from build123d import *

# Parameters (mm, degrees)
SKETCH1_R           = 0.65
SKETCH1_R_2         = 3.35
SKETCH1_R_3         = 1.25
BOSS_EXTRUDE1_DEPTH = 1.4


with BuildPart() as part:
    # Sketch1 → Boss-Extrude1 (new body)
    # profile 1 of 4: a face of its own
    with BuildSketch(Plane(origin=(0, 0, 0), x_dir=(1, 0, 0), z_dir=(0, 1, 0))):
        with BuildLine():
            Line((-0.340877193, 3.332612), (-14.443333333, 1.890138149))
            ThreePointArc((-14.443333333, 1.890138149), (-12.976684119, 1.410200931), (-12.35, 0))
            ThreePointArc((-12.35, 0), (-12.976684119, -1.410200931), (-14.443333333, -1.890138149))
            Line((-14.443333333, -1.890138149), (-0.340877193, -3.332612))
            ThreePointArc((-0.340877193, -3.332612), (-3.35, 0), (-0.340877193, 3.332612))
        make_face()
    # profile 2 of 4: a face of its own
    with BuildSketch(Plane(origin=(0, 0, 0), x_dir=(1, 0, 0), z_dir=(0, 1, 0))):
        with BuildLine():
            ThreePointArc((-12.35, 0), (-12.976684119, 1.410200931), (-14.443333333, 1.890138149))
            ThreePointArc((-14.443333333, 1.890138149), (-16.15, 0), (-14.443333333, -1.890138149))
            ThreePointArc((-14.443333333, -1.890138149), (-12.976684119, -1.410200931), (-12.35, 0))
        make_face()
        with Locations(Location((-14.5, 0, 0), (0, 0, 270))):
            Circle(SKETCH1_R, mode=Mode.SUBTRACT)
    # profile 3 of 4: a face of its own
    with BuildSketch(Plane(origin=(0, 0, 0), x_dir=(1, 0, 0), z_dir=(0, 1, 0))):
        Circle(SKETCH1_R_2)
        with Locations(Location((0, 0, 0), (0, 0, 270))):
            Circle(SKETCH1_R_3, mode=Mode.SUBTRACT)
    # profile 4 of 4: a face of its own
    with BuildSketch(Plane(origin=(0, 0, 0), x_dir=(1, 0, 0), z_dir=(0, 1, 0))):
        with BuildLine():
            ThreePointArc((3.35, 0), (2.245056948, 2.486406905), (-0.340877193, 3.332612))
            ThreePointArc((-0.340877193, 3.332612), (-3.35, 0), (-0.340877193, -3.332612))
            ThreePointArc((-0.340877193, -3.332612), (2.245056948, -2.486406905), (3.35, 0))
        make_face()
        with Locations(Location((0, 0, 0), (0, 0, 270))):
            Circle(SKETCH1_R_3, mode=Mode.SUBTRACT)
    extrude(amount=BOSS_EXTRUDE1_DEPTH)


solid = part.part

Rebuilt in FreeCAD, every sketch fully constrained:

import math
import FreeCAD as App
import Part
import Sketcher

V = App.Vector

doc = App.newDocument("Part")
body = doc.addObject("PartDesign::Body", "Body")

# Sketch on XZ plane
sketch1 = body.newObject("Sketcher::SketchObject", "Sketch")
sketch1.AttachmentSupport = (doc.getObject("XZ_Plane"), [""])
sketch1.MapMode = "FlatFace"
sketch1.addGeometry(Part.LineSegment(V(-0.3, -3.3, 0), V(-14.4, -1.9, 0)), False)
sketch1.addGeometry(Part.ArcOfCircle(Part.Circle(V(-14.2, 0, 0), V(0, 0, 1), 1.9), math.radians(96), math.radians(264)), False)
sketch1.addGeometry(Part.LineSegment(V(-14.4, 1.9, 0), V(-0.3, 3.3, 0)), False)
sketch1.addGeometry(Part.ArcOfCircle(Part.Circle(V(0, 0, 0), V(0, 0, 1), 3.4), math.radians(-96), math.radians(96)), False)
sketch1.addGeometry(Part.Circle(V(-14.5, 0, 0), V(0, 0, 1), 0.7), False)
sketch1.addGeometry(Part.Circle(V(0, 0, 0), V(0, 0, 1), 1.2), False)
sketch1.addConstraint(Sketcher.Constraint("Tangent", 0, 2, 1, 2))
sketch1.addConstraint(Sketcher.Constraint("Tangent", 1, 1, 2, 1))
sketch1.addConstraint(Sketcher.Constraint("Tangent", 2, 2, 3, 2))
sketch1.addConstraint(Sketcher.Constraint("Tangent", 3, 1, 0, 1))
sketch1.addConstraint(Sketcher.Constraint("Coincident", 3, 3, -1, 1))
sketch1.addConstraint(Sketcher.Constraint("Coincident", 5, 3, -1, 1))
sketch1.addConstraint(Sketcher.Constraint("PointOnObject", 1, 3, -1))
sketch1.addConstraint(Sketcher.Constraint("PointOnObject", 4, 3, -1))
sketch1.addConstraint(Sketcher.Constraint("Diameter", 4, 1.3))
sketch1.addConstraint(Sketcher.Constraint("Diameter", 5, 2.5))
sketch1.addConstraint(Sketcher.Constraint("Radius", 1, 1.9))
sketch1.addConstraint(Sketcher.Constraint("Radius", 3, 3.35))
sketch1.addConstraint(Sketcher.Constraint("DistanceX", 4, 3, -1, 1, 14.5))
sketch1.addConstraint(Sketcher.Constraint("DistanceX", 1, 3, -1, 1, 14.25))
pad1 = body.newObject("PartDesign::Pad", "Pad")
pad1.Profile = sketch1
pad1.Length = 1.4
pad1.Reversed = True

doc.recompute()
